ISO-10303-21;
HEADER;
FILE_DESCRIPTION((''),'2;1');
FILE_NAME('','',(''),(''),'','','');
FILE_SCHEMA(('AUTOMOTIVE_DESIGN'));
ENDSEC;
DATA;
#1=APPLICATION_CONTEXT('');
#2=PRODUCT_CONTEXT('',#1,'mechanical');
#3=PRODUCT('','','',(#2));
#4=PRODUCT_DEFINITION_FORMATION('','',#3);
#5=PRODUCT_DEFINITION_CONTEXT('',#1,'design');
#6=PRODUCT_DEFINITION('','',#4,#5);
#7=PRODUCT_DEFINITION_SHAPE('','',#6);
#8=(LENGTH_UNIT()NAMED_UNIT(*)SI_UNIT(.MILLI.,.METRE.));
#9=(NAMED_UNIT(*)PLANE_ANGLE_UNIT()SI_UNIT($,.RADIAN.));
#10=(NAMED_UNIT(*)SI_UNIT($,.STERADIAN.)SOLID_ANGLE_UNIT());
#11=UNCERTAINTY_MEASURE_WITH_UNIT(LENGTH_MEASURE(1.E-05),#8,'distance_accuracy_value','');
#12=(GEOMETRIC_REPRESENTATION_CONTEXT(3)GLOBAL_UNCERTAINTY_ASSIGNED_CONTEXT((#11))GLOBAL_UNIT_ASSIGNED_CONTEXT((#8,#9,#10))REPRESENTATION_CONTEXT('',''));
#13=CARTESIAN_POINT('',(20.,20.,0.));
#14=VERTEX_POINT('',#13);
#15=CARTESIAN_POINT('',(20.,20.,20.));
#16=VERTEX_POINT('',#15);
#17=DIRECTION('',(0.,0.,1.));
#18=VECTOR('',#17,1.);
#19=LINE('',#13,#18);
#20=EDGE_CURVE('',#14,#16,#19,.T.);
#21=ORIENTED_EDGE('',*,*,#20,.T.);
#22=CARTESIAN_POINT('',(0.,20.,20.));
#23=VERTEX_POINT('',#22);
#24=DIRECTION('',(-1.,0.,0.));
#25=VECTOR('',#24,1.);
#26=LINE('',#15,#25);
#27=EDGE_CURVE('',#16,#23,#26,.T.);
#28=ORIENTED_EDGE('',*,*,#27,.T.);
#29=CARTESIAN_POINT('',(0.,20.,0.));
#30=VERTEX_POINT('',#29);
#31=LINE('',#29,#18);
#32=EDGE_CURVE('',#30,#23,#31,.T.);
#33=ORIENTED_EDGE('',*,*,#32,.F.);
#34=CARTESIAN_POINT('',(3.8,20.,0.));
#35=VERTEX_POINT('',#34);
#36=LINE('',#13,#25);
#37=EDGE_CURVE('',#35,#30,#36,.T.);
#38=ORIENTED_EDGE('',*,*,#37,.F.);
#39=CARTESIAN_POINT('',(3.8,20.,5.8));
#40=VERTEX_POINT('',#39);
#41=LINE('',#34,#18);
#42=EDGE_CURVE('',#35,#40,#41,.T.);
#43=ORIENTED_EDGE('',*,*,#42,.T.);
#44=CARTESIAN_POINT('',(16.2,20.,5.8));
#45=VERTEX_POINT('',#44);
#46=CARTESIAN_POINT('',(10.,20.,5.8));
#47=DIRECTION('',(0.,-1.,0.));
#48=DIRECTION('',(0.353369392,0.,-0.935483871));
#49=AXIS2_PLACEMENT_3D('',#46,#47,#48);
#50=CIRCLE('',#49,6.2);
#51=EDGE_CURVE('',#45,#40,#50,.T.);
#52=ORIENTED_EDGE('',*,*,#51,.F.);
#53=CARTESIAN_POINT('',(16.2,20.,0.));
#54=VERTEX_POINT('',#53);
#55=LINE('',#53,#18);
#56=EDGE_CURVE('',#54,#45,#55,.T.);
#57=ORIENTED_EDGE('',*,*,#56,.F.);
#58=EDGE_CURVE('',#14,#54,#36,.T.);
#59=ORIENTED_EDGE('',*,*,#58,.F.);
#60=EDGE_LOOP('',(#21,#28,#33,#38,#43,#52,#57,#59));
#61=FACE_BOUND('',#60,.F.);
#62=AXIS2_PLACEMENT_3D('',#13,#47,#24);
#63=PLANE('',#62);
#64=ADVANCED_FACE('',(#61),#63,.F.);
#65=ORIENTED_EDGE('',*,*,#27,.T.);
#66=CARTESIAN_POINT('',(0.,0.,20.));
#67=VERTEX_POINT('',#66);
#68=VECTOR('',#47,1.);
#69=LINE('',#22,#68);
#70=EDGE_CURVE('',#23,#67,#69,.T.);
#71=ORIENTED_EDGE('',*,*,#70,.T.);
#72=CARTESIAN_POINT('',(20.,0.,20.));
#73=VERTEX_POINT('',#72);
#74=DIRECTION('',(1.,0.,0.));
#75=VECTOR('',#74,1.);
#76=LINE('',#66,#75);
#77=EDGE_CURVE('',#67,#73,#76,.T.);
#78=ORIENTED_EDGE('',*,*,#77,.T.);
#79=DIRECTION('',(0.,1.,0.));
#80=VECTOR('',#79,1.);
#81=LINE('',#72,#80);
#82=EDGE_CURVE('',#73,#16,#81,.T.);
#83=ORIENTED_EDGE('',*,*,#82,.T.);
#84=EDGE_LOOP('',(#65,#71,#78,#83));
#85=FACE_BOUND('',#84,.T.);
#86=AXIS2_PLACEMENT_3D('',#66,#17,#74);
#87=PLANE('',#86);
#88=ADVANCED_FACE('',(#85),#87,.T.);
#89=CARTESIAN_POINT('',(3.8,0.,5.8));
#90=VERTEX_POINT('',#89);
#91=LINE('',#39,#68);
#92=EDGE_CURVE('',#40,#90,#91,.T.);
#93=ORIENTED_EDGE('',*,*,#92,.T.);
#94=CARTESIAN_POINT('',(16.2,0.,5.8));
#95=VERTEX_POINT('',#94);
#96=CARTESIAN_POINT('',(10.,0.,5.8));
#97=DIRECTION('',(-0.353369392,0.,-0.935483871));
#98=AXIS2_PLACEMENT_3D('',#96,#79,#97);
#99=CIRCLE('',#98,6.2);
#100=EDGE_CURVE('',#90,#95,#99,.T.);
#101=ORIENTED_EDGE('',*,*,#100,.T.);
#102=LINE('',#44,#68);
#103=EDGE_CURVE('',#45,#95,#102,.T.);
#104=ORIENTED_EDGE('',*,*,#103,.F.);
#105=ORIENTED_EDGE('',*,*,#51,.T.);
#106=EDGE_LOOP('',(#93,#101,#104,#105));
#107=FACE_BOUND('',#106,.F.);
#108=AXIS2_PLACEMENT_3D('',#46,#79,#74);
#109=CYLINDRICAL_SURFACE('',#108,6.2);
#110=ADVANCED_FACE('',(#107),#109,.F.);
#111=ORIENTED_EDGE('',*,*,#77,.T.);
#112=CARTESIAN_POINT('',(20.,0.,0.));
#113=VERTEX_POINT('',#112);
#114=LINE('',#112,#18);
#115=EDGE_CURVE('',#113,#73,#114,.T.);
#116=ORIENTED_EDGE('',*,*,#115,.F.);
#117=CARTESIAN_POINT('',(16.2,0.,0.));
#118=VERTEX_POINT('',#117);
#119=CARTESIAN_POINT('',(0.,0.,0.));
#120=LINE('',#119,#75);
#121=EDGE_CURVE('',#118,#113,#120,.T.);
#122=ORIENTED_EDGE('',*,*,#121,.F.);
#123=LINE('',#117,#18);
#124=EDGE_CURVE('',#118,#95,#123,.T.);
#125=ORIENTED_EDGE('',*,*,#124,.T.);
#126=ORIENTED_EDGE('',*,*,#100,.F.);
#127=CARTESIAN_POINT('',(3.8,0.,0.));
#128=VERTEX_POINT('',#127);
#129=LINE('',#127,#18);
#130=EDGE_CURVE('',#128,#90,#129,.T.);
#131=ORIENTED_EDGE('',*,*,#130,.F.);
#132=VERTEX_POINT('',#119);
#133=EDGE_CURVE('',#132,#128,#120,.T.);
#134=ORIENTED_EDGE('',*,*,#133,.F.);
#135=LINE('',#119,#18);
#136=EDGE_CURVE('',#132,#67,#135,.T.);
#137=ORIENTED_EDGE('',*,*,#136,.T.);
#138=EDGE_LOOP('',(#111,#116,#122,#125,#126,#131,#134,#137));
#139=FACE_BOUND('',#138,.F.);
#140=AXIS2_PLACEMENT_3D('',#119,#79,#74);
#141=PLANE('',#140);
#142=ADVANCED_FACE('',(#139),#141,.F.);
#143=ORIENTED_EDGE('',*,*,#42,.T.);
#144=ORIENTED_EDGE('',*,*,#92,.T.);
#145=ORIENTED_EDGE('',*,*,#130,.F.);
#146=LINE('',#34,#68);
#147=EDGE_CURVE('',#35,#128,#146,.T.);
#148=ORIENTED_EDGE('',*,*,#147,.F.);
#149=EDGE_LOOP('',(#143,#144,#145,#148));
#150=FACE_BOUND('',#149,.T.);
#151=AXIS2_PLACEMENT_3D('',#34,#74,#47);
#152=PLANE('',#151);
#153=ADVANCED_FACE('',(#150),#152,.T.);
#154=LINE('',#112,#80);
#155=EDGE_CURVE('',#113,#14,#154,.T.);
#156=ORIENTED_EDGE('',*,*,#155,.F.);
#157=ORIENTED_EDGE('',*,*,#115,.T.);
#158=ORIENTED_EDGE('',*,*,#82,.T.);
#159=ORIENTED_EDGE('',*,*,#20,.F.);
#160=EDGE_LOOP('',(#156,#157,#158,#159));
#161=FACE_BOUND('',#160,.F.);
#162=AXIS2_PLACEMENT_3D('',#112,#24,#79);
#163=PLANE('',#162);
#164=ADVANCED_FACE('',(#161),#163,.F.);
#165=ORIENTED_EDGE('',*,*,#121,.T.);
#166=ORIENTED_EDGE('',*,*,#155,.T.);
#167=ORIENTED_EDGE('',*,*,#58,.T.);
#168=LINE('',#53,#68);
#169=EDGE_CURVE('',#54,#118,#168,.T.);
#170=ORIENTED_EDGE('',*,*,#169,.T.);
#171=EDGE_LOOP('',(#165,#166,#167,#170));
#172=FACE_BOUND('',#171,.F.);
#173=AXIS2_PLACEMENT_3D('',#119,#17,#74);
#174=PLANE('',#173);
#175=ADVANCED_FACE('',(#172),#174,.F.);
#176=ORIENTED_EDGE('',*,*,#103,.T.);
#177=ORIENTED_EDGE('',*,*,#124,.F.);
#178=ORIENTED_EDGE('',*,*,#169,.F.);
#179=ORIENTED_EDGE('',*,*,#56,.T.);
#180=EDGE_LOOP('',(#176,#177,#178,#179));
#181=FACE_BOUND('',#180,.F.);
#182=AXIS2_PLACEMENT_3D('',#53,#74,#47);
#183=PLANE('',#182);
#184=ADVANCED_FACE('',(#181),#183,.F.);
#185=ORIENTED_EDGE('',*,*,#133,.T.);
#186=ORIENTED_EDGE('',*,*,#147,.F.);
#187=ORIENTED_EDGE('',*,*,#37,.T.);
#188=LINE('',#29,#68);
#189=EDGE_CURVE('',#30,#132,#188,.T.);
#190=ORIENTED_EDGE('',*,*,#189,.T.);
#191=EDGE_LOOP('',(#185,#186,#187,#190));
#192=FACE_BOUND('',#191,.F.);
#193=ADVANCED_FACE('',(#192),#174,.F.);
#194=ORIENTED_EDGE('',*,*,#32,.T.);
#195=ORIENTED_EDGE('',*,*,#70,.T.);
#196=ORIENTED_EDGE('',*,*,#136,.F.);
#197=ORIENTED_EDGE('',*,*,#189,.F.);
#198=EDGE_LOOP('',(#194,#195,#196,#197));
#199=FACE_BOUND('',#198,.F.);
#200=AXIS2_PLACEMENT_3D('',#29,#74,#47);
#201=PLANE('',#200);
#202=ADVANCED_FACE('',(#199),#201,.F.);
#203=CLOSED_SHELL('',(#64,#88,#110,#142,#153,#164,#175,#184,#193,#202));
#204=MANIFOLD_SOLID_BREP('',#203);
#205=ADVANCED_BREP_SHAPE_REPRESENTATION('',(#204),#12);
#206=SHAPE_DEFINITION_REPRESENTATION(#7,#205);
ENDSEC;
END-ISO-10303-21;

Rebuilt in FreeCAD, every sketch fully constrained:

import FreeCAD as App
import Part
import Sketcher

doc = App.newDocument("Part")
body = doc.addObject("PartDesign::Body", "Body")

# Sketch on XY plane
sketch1 = doc.addObject("Sketcher::SketchObject", "Sketch")
body.addObject(sketch1)
sketch1.AttachmentSupport = (doc.XY_Plane, [""])
sketch1.MapMode = "FlatFace"
sketch1.addGeometry([
    Part.LineSegment(App.Vector(0, 20, 0), App.Vector(0, 0, 0)),
    Part.LineSegment(App.Vector(0, 0, 0), App.Vector(20, 0, 0)),
    Part.LineSegment(App.Vector(20, 0, 0), App.Vector(20, 20, 0)),
    Part.LineSegment(App.Vector(20, 20, 0), App.Vector(0, 20, 0)),
], False)
sketch1.addConstraint([
    Sketcher.Constraint("Coincident", 0, 2, 1, 1),
    Sketcher.Constraint("Coincident", 1, 2, 2, 1),
    Sketcher.Constraint("Coincident", 2, 2, 3, 1),
    Sketcher.Constraint("Coincident", 3, 2, 0, 1),
    Sketcher.Constraint("Vertical", 0),
    Sketcher.Constraint("Horizontal", 1),
    Sketcher.Constraint("Vertical", 2),
    Sketcher.Constraint("Horizontal", 3),
    Sketcher.Constraint("Coincident", 0, 2, -1, 1),
    Sketcher.Constraint("Equal", 3, 0),
    Sketcher.Constraint("DistanceX", 1, 1, 1, 2, 20.0),
])
pad1 = doc.addObject("PartDesign::Pad", "Pad")
body.addObject(pad1)
pad1.Profile = sketch1
pad1.Length = 20

# Sketch on XZ plane
sketch2 = doc.addObject("Sketcher::SketchObject", "Sketch001")
body.addObject(sketch2)
sketch2.AttachmentSupport = (doc.XZ_Plane, [""])
sketch2.MapMode = "FlatFace"
sketch2.AttachmentOffset = App.Placement(App.Vector(0, 0, -20), App.Rotation())
sketch2.addGeometry(Part.Circle(App.Vector(10, 6, 0), App.Vector(0, 0, 1), 6), False)
sketch2.addConstraint([
    Sketcher.Constraint("Diameter", 0, 12.4),
    Sketcher.Constraint("DistanceX", -1, 1, 0, 3, 10.0),
    Sketcher.Constraint("DistanceY", -1, 1, 0, 3, 5.8),
])
pocket1 = doc.addObject("PartDesign::Pocket", "Pocket")
body.addObject(pocket1)
pocket1.Profile = sketch2
pocket1.Length = 20
pocket1.Reversed = True

# Sketch on XY plane
sketch3 = doc.addObject("Sketcher::SketchObject", "Sketch002")
body.addObject(sketch3)
sketch3.AttachmentSupport = (doc.XY_Plane, [""])
sketch3.MapMode = "FlatFace"
sketch3.addGeometry([
    Part.LineSegment(App.Vector(16.2, 0, 0), App.Vector(12.2, 0, 0)),
    Part.LineSegment(App.Vector(12.2, 0, 0), App.Vector(12.2, 20, 0)),
    Part.LineSegment(App.Vector(12.2, 20, 0), App.Vector(16.2, 20, 0)),
    Part.LineSegment(App.Vector(16.2, 20, 0), App.Vector(16.2, 0, 0)),
], False)
sketch3.addConstraint([
    Sketcher.Constraint("Coincident", 0, 2, 1, 1),
    Sketcher.Constraint("Coincident", 1, 2, 2, 1),
    Sketcher.Constraint("Coincident", 2, 2, 3, 1),
    Sketcher.Constraint("Coincident", 3, 2, 0, 1),
    Sketcher.Constraint("Horizontal", 0),
    Sketcher.Constraint("Vertical", 1),
    Sketcher.Constraint("Horizontal", 2),
    Sketcher.Constraint("Vertical", 3),
    Sketcher.Constraint("PointOnObject", 0, 2, -1),
    Sketcher.Constraint("DistanceY", 1, 1, 1, 2, 20.0),
    Sketcher.Constraint("DistanceX", -1, 1, 2, 2, 16.2),
    Sketcher.Constraint("DistanceX", 0, 2, 0, 1, 4.009),
])
pocket2 = doc.addObject("PartDesign::Pocket", "Pocket001")
body.addObject(pocket2)
pocket2.Profile = sketch3
pocket2.Length = 5.8
pocket2.Reversed = True

# Sketch on XY plane
sketch4 = doc.addObject("Sketcher::SketchObject", "Sketch003")
body.addObject(sketch4)
sketch4.AttachmentSupport = (doc.XY_Plane, [""])
sketch4.MapMode = "FlatFace"
sketch4.addGeometry([
    Part.LineSegment(App.Vector(3.8, 20, 0), App.Vector(7.8, 20, 0)),
    Part.LineSegment(App.Vector(7.8, 20, 0), App.Vector(7.8, 0, 0)),
    Part.LineSegment(App.Vector(7.8, 0, 0), App.Vector(3.8, 0, 0)),
    Part.LineSegment(App.Vector(3.8, 0, 0), App.Vector(3.8, 20, 0)),
], False)
sketch4.addConstraint([
    Sketcher.Constraint("Coincident", 0, 2, 1, 1),
    Sketcher.Constraint("Coincident", 1, 2, 2, 1),
    Sketcher.Constraint("Coincident", 2, 2, 3, 1),
    Sketcher.Constraint("Coincident", 3, 2, 0, 1),
    Sketcher.Constraint("Horizontal", 0),
    Sketcher.Constraint("Vertical", 1),
    Sketcher.Constraint("Horizontal", 2),
    Sketcher.Constraint("Vertical", 3),
    Sketcher.Constraint("PointOnObject", 1, 2, -1),
    Sketcher.Constraint("DistanceY", 1, 2, 1, 1, 20.0),
    Sketcher.Constraint("DistanceX", -1, 1, 2, 2, 3.8),
    Sketcher.Constraint("DistanceX", 0, 1, 0, 2, 4.009),
])
pocket3 = doc.addObject("PartDesign::Pocket", "Pocket002")
body.addObject(pocket3)
pocket3.Profile = sketch4
pocket3.Length = 5.8
pocket3.Reversed = True

doc.recompute()
